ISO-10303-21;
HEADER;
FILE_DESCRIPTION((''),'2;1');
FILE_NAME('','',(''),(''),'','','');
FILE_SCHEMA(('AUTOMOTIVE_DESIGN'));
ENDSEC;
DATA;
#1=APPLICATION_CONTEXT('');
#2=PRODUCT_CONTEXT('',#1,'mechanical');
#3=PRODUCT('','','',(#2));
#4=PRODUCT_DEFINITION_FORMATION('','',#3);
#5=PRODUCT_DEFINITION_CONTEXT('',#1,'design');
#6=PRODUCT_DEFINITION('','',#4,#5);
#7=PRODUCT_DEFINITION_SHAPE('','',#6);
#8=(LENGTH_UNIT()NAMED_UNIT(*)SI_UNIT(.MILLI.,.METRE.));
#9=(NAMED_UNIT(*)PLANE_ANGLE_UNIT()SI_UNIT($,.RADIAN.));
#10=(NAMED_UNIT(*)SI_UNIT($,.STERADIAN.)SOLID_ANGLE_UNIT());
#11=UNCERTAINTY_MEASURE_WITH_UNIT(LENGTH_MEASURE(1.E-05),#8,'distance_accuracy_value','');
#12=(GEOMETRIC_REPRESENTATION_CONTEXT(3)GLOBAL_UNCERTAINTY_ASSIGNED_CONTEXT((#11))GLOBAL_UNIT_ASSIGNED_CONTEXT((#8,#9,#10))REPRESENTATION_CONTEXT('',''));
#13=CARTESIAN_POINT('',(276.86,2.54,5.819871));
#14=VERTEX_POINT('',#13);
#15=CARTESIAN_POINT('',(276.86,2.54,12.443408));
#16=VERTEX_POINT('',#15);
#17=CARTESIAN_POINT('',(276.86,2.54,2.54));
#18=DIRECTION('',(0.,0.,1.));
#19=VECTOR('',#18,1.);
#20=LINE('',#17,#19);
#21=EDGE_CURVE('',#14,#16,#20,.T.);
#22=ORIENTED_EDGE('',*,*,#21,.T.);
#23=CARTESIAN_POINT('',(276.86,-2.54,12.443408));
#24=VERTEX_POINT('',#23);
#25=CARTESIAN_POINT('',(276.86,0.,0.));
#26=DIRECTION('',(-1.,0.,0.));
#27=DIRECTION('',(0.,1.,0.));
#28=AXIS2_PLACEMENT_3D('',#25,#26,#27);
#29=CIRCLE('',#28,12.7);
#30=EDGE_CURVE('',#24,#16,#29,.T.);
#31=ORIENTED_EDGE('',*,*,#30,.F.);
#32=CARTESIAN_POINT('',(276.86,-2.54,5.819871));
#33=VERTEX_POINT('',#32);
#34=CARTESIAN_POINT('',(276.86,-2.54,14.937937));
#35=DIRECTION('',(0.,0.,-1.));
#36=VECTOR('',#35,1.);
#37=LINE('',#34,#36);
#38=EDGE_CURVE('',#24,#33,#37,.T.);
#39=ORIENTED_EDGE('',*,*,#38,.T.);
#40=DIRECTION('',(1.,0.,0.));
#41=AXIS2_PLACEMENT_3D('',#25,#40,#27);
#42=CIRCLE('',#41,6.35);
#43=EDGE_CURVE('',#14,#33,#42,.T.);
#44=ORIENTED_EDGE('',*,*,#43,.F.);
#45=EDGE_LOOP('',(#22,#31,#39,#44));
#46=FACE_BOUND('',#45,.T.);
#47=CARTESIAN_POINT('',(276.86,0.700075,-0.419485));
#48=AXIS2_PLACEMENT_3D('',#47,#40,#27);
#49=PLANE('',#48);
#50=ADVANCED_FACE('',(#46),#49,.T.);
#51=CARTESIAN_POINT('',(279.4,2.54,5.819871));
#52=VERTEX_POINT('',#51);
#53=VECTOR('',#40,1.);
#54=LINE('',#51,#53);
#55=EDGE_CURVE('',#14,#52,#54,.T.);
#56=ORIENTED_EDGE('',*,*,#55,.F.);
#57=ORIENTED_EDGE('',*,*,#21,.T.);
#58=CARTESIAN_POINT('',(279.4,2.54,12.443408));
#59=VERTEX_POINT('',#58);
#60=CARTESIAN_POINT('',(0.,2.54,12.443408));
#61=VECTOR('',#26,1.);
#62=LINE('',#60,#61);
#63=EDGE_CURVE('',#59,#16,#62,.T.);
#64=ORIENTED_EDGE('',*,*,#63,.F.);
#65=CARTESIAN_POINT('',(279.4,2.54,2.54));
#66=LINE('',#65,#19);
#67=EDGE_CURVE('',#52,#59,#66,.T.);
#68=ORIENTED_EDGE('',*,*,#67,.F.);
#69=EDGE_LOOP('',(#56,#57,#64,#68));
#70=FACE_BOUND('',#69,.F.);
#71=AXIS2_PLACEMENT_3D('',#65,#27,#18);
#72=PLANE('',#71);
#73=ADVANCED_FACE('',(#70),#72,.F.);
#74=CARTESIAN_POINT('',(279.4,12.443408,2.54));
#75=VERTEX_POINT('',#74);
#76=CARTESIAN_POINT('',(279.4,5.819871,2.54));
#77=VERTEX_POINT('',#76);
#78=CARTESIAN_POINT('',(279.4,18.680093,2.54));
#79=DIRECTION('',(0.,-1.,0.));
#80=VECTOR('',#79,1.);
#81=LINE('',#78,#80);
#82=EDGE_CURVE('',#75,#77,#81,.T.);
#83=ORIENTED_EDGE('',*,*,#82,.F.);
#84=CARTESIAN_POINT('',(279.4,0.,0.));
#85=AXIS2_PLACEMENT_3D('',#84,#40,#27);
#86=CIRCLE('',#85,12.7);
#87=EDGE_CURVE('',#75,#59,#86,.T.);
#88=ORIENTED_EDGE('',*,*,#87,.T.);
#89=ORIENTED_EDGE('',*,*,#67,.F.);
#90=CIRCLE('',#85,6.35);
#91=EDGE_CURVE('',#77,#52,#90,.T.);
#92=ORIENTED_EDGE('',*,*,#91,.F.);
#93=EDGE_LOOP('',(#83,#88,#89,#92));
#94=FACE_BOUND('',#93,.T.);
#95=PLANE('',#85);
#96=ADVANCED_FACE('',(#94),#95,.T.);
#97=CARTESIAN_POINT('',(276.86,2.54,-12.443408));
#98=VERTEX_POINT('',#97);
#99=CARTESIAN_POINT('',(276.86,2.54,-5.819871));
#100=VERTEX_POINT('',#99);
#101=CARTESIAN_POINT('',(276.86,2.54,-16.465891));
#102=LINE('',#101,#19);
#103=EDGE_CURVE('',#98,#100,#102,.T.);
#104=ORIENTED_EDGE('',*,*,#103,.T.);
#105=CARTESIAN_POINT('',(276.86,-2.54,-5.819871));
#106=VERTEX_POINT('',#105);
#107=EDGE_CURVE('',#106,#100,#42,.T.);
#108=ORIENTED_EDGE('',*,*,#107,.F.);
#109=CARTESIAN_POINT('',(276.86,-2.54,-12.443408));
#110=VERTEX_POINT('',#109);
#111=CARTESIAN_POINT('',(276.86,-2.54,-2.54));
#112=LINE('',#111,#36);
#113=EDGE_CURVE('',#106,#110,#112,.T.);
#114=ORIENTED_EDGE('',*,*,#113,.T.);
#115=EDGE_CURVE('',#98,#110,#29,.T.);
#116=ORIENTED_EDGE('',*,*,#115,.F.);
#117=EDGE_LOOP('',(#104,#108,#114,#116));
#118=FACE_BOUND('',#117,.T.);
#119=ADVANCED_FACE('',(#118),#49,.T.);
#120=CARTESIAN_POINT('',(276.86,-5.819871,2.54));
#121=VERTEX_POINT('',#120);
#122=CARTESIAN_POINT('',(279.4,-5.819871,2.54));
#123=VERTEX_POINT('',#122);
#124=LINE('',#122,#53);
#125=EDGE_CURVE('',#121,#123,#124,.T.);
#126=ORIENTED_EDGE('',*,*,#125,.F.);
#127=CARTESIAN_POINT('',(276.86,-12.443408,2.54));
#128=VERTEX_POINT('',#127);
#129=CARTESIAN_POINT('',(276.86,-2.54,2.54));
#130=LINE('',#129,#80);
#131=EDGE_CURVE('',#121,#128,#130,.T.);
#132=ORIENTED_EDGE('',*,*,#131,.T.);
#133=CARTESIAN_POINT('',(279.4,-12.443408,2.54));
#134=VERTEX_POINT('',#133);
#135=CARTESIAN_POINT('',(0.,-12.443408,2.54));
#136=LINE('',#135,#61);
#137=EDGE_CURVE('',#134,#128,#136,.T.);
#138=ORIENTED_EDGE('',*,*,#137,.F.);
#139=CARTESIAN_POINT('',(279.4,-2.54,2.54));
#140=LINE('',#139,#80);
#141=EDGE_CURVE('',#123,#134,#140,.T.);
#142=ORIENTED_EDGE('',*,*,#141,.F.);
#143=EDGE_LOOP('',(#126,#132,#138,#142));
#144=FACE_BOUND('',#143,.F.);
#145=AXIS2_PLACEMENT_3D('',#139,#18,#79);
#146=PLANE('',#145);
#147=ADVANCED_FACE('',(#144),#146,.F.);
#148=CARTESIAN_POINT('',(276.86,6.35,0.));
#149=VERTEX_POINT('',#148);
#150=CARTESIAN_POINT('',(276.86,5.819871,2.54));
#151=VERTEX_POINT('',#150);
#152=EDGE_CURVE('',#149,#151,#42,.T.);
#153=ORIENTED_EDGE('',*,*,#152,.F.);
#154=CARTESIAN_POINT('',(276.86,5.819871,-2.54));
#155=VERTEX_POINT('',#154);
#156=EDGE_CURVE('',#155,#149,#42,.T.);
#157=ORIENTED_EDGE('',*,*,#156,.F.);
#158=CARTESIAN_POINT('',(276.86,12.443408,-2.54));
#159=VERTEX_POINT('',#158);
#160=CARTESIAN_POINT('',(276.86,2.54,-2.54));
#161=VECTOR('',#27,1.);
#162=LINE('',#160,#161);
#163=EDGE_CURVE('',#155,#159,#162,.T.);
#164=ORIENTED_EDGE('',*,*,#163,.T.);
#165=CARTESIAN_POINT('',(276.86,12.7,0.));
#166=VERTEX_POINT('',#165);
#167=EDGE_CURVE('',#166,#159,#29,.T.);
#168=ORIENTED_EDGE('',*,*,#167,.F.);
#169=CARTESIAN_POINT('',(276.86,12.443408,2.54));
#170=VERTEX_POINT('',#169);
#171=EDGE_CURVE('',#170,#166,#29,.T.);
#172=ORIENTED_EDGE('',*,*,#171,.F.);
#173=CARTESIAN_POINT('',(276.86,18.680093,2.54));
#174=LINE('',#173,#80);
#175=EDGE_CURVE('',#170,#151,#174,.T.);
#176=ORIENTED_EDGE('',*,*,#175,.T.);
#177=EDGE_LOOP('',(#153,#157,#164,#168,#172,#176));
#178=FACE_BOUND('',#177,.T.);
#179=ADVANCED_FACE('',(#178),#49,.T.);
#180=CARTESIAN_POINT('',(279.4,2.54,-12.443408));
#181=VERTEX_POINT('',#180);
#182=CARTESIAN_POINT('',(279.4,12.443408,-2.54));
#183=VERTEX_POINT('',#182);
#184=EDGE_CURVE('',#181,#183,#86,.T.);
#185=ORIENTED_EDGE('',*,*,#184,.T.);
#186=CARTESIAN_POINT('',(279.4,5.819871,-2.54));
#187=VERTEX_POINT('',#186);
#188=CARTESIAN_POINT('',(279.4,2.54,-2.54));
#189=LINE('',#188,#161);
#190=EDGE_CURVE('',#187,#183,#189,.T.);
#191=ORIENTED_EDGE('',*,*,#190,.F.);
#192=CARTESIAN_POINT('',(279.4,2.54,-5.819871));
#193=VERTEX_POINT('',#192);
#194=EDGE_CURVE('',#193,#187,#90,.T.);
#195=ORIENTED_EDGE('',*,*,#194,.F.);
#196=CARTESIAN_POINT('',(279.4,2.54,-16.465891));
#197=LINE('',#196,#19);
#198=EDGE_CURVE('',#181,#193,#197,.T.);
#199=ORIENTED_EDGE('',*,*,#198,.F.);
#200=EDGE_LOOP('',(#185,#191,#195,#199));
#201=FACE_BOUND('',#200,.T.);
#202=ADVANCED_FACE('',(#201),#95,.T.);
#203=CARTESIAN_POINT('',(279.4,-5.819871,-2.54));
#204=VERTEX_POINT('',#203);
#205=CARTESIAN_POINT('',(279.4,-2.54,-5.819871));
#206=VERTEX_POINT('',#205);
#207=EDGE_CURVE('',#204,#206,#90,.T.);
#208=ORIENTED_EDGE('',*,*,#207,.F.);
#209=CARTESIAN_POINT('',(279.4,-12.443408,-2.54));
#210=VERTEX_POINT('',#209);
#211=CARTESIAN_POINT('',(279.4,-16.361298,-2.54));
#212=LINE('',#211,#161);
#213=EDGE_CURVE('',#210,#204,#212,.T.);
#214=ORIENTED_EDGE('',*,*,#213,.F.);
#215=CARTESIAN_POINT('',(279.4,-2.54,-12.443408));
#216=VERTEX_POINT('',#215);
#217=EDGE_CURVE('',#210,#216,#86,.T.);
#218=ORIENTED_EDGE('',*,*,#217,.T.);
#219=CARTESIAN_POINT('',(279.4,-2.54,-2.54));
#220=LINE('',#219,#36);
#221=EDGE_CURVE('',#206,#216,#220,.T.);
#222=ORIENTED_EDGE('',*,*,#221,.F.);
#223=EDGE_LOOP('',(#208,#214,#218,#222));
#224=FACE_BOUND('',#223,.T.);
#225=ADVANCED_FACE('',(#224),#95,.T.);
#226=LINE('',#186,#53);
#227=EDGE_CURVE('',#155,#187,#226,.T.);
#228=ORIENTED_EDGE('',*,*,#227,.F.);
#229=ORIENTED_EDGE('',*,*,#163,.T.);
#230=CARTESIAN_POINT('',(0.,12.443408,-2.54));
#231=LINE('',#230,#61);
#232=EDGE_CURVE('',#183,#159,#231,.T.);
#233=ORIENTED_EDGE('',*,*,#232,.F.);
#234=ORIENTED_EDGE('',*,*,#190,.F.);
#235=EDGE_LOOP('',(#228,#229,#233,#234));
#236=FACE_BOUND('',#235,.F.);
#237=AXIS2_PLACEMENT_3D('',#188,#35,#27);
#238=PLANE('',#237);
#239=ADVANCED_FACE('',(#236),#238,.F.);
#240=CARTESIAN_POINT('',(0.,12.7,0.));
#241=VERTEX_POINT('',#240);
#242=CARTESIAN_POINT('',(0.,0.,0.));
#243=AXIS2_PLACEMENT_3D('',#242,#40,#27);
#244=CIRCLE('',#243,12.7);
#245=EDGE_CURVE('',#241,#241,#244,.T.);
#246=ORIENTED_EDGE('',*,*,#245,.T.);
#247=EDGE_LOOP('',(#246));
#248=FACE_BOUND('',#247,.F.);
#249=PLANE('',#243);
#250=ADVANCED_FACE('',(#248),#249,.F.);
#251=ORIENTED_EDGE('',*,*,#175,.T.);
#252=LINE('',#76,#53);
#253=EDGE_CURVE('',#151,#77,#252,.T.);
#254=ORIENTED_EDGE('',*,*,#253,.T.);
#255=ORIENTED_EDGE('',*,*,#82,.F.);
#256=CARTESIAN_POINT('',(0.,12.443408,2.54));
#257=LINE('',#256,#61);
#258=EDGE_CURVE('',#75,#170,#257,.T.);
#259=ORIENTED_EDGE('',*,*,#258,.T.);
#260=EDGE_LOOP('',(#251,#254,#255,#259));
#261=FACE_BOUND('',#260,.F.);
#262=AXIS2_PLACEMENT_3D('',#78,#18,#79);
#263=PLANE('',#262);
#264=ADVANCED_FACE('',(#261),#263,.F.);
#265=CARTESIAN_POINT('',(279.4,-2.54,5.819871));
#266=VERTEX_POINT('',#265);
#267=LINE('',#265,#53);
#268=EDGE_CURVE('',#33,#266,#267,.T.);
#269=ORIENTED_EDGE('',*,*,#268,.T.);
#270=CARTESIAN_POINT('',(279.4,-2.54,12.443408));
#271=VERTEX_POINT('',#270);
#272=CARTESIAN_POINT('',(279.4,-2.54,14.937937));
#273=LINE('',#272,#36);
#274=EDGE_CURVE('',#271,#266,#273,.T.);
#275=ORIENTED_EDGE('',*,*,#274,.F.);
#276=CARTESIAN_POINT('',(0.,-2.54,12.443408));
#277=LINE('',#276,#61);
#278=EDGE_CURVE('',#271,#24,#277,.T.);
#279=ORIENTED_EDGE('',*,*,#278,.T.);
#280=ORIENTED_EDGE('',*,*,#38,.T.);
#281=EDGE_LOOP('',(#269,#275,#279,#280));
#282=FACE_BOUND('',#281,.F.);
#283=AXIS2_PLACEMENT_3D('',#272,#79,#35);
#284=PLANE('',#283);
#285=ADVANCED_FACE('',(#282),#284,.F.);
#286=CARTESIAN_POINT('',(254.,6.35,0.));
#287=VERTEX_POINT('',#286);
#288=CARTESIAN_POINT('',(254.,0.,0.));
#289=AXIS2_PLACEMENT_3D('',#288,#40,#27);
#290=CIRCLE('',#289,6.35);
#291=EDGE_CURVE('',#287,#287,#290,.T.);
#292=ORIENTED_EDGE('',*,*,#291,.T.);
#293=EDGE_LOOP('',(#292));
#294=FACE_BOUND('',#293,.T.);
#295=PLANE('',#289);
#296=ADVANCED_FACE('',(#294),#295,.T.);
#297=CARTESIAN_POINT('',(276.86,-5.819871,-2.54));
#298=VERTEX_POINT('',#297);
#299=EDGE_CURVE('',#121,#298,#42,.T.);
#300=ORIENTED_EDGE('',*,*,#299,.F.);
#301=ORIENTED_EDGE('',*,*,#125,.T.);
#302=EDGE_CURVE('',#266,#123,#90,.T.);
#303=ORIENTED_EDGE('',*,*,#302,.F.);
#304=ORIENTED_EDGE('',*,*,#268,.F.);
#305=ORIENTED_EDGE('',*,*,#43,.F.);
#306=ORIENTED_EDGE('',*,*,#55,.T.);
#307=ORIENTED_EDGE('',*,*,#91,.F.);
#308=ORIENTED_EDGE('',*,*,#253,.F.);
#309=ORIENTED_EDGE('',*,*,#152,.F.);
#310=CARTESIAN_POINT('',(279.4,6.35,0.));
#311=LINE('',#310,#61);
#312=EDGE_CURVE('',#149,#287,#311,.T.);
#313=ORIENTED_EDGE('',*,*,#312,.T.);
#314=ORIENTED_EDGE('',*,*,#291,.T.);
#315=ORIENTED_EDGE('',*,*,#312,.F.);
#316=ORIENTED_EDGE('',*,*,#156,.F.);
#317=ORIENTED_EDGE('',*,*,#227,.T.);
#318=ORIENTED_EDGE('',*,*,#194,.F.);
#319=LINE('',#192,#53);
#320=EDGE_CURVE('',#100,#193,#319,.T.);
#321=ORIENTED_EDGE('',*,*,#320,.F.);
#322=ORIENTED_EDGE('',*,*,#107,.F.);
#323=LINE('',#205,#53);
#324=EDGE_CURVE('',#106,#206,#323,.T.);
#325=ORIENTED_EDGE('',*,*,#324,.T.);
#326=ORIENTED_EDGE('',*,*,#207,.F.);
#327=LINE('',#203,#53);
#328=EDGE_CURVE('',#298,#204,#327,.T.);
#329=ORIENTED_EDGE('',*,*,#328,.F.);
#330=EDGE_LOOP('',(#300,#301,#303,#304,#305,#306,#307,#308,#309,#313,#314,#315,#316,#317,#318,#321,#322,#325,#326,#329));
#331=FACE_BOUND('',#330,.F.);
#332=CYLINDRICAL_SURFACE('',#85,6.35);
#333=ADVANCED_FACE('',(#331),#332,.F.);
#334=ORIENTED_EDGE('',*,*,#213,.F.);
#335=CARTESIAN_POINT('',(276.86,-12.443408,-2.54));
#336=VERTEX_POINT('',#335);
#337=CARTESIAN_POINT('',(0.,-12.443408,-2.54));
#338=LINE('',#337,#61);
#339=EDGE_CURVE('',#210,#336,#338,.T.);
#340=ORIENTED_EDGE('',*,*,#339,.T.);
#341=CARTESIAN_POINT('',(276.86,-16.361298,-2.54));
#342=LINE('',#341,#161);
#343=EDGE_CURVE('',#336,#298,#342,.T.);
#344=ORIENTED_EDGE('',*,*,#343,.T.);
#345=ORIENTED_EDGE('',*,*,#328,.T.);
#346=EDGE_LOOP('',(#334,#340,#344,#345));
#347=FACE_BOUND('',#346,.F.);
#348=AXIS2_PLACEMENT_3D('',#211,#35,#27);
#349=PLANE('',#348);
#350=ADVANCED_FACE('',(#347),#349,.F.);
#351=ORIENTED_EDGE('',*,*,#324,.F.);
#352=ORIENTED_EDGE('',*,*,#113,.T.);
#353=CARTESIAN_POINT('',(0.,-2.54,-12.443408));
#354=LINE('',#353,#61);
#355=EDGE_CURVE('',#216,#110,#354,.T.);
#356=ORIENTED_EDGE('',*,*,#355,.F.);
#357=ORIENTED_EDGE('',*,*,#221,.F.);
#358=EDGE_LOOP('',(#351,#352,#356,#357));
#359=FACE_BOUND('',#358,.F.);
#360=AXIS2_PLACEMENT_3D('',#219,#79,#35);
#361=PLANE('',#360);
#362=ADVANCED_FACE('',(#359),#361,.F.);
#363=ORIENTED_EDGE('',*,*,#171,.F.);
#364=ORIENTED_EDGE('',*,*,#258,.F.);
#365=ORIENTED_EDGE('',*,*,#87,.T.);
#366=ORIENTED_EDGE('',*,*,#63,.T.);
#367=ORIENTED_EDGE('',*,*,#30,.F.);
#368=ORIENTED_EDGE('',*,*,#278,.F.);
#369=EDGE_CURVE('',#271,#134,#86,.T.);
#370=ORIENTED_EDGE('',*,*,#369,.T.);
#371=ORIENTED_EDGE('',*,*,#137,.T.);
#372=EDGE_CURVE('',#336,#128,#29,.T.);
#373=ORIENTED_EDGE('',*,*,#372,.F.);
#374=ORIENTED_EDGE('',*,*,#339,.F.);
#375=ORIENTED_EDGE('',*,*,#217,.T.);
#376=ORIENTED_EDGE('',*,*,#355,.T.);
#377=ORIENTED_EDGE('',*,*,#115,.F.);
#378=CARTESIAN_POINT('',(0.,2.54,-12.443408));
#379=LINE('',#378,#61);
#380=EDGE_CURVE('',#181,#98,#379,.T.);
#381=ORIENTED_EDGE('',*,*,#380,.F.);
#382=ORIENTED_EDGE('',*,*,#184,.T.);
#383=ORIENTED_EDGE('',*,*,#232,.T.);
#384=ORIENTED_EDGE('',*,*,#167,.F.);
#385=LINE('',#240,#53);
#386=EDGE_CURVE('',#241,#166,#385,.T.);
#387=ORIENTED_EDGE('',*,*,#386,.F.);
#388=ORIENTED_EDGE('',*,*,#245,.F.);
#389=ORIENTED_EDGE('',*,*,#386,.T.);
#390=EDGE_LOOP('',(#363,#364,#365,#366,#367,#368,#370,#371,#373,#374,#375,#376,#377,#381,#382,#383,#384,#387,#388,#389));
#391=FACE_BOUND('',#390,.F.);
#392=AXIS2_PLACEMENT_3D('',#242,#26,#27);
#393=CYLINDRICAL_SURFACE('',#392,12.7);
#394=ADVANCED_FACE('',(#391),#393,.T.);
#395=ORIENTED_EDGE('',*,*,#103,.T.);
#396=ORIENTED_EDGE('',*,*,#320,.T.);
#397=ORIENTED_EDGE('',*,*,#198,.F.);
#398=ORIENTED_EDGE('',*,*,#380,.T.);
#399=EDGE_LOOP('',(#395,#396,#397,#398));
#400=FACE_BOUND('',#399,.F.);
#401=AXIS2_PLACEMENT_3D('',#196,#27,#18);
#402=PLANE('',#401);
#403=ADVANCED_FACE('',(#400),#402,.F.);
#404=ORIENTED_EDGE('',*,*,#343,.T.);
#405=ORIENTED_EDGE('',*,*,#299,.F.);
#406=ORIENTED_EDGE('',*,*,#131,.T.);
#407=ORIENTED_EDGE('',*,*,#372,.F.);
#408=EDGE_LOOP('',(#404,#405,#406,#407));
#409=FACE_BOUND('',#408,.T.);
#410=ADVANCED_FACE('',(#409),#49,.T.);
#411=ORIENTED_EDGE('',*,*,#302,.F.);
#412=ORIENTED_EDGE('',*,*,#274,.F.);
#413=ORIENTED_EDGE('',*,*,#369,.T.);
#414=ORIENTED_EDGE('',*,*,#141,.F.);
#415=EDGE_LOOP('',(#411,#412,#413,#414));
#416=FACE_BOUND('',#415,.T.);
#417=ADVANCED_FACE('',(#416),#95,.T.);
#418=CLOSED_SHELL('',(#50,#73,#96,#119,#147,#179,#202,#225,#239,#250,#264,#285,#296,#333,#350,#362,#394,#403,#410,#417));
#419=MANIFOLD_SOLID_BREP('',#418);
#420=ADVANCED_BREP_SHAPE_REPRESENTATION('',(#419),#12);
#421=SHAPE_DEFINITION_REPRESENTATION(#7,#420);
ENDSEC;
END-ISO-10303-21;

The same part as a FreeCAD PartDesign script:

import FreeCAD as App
import Part
import Sketcher
Q = App.Units.Quantity

doc = App.newDocument("Part")
body = doc.addObject("PartDesign::Body", "Body")

sketch1 = doc.addObject("Sketcher::SketchObject", "Sketch")
body.addObject(sketch1)
sketch1.AttachmentSupport = (doc.YZ_Plane, [""])
sketch1.MapMode = "FlatFace"
sketch1.addGeometry(Part.Circle(App.Vector(0, 0, 0), App.Vector(0, 0, 1), 13), False)
sketch1.addConstraint([
    Sketcher.Constraint("Coincident", 0, 3, -1, 1),
    Sketcher.Constraint("Diameter", 0, Q("1 in")),
])
pad1 = doc.addObject("PartDesign::Pad", "Pad")
body.addObject(pad1)
pad1.Profile = sketch1
pad1.Length = Q("11 in")

sketch2 = doc.addObject("Sketcher::SketchObject", "Sketch001")
body.addObject(sketch2)
sketch2.AttachmentSupport = (doc.YZ_Plane, [""])
sketch2.MapMode = "FlatFace"
sketch2.AttachmentOffset = App.Placement(App.Vector(0, 0, 11 * 25.4), App.Rotation())
sketch2.addGeometry(Part.Circle(App.Vector(0, 0, 0), App.Vector(0, 0, 1), 6), False)
sketch2.addConstraint([
    Sketcher.Constraint("Coincident", 0, 3, -1, 1),
    Sketcher.Constraint("Diameter", 0, Q("0.5 in")),
])
pocket1 = doc.addObject("PartDesign::Pocket", "Pocket")
body.addObject(pocket1)
pocket1.Profile = sketch2
pocket1.Length = Q("1 in")

sketch3 = doc.addObject("Sketcher::SketchObject", "Sketch002")
body.addObject(sketch3)
sketch3.AttachmentSupport = (doc.YZ_Plane, [""])
sketch3.MapMode = "FlatFace"
sketch3.AttachmentOffset = App.Placement(App.Vector(0, 0, 11 * 25.4), App.Rotation())
sketch3.addGeometry([
    Part.LineSegment(App.Vector(3, 15, 0), App.Vector(-3, 15, 0)),
    Part.LineSegment(App.Vector(-3, 15, 0), App.Vector(-3, 3, 0)),
    Part.LineSegment(App.Vector(-3, 3, 0), App.Vector(-16, 3, 0)),
    Part.LineSegment(App.Vector(-16, 3, 0), App.Vector(-16, -3, 0)),
    Part.LineSegment(App.Vector(-16, -3, 0), App.Vector(-3, -3, 0)),
    Part.LineSegment(App.Vector(-3, -3, 0), App.Vector(-3, -16, 0)),
    Part.LineSegment(App.Vector(-3, -16, 0), App.Vector(3, -16, 0)),
    Part.LineSegment(App.Vector(3, -16, 0), App.Vector(3, -3, 0)),
    Part.LineSegment(App.Vector(3, -3, 0), App.Vector(19, -3, 0)),
    Part.LineSegment(App.Vector(19, -3, 0), App.Vector(19, 3, 0)),
    Part.LineSegment(App.Vector(19, 3, 0), App.Vector(3, 3, 0)),
    Part.LineSegment(App.Vector(3, 3, 0), App.Vector(3, 15, 0)),
], False)
sketch3.addConstraint([
    Sketcher.Constraint("Coincident", 0, 2, 1, 1),
    Sketcher.Constraint("Coincident", 1, 2, 2, 1),
    Sketcher.Constraint("Coincident", 2, 2, 3, 1),
    Sketcher.Constraint("Coincident", 3, 2, 4, 1),
    Sketcher.Constraint("Coincident", 4, 2, 5, 1),
    Sketcher.Constraint("Coincident", 5, 2, 6, 1),
    Sketcher.Constraint("Coincident", 6, 2, 7, 1),
    Sketcher.Constraint("Coincident", 7, 2, 8, 1),
    Sketcher.Constraint("Coincident", 8, 2, 9, 1),
    Sketcher.Constraint("Coincident", 9, 2, 10, 1),
    Sketcher.Constraint("Coincident", 10, 2, 11, 1),
    Sketcher.Constraint("Coincident", 11, 2, 0, 1),
    Sketcher.Constraint("Horizontal", 0),
    Sketcher.Constraint("Vertical", 1),
    Sketcher.Constraint("Horizontal", 2),
    Sketcher.Constraint("Vertical", 3),
    Sketcher.Constraint("Horizontal", 4),
    Sketcher.Constraint("Vertical", 5),
    Sketcher.Constraint("Horizontal", 6),
    Sketcher.Constraint("Vertical", 7),
    Sketcher.Constraint("Horizontal", 8),
    Sketcher.Constraint("Vertical", 9),
    Sketcher.Constraint("Horizontal", 10),
    Sketcher.Constraint("Vertical", 11),
    Sketcher.Constraint("Symmetric", 1, 2, 7, 2, -1, 1),
    Sketcher.Constraint("Symmetric", 4, 2, 10, 2, -1, 1),
    Sketcher.Constraint("Symmetric", 4, 2, 7, 2, -2),
    Sketcher.Constraint("Equal", 6, 3),
    Sketcher.Constraint("DistanceX", 0, 2, 0, 1, Q("0.2 in")),
    Sketcher.Constraint("DistanceX", 2, 2, 2, 1, Q("13.821298 mm")),
    Sketcher.Constraint("DistanceY", 5, 2, 5, 1, Q("13.925891 mm")),
    Sketcher.Constraint("DistanceX", 8, 1, 8, 2, Q("16.140093 mm")),
    Sketcher.Constraint("DistanceY", 1, 2, 1, 1, Q("12.397937 mm")),
])
pocket2 = doc.addObject("PartDesign::Pocket", "Pocket001")
body.addObject(pocket2)
pocket2.Profile = sketch3
pocket2.Length = Q("0.1 in")

doc.recompute()
